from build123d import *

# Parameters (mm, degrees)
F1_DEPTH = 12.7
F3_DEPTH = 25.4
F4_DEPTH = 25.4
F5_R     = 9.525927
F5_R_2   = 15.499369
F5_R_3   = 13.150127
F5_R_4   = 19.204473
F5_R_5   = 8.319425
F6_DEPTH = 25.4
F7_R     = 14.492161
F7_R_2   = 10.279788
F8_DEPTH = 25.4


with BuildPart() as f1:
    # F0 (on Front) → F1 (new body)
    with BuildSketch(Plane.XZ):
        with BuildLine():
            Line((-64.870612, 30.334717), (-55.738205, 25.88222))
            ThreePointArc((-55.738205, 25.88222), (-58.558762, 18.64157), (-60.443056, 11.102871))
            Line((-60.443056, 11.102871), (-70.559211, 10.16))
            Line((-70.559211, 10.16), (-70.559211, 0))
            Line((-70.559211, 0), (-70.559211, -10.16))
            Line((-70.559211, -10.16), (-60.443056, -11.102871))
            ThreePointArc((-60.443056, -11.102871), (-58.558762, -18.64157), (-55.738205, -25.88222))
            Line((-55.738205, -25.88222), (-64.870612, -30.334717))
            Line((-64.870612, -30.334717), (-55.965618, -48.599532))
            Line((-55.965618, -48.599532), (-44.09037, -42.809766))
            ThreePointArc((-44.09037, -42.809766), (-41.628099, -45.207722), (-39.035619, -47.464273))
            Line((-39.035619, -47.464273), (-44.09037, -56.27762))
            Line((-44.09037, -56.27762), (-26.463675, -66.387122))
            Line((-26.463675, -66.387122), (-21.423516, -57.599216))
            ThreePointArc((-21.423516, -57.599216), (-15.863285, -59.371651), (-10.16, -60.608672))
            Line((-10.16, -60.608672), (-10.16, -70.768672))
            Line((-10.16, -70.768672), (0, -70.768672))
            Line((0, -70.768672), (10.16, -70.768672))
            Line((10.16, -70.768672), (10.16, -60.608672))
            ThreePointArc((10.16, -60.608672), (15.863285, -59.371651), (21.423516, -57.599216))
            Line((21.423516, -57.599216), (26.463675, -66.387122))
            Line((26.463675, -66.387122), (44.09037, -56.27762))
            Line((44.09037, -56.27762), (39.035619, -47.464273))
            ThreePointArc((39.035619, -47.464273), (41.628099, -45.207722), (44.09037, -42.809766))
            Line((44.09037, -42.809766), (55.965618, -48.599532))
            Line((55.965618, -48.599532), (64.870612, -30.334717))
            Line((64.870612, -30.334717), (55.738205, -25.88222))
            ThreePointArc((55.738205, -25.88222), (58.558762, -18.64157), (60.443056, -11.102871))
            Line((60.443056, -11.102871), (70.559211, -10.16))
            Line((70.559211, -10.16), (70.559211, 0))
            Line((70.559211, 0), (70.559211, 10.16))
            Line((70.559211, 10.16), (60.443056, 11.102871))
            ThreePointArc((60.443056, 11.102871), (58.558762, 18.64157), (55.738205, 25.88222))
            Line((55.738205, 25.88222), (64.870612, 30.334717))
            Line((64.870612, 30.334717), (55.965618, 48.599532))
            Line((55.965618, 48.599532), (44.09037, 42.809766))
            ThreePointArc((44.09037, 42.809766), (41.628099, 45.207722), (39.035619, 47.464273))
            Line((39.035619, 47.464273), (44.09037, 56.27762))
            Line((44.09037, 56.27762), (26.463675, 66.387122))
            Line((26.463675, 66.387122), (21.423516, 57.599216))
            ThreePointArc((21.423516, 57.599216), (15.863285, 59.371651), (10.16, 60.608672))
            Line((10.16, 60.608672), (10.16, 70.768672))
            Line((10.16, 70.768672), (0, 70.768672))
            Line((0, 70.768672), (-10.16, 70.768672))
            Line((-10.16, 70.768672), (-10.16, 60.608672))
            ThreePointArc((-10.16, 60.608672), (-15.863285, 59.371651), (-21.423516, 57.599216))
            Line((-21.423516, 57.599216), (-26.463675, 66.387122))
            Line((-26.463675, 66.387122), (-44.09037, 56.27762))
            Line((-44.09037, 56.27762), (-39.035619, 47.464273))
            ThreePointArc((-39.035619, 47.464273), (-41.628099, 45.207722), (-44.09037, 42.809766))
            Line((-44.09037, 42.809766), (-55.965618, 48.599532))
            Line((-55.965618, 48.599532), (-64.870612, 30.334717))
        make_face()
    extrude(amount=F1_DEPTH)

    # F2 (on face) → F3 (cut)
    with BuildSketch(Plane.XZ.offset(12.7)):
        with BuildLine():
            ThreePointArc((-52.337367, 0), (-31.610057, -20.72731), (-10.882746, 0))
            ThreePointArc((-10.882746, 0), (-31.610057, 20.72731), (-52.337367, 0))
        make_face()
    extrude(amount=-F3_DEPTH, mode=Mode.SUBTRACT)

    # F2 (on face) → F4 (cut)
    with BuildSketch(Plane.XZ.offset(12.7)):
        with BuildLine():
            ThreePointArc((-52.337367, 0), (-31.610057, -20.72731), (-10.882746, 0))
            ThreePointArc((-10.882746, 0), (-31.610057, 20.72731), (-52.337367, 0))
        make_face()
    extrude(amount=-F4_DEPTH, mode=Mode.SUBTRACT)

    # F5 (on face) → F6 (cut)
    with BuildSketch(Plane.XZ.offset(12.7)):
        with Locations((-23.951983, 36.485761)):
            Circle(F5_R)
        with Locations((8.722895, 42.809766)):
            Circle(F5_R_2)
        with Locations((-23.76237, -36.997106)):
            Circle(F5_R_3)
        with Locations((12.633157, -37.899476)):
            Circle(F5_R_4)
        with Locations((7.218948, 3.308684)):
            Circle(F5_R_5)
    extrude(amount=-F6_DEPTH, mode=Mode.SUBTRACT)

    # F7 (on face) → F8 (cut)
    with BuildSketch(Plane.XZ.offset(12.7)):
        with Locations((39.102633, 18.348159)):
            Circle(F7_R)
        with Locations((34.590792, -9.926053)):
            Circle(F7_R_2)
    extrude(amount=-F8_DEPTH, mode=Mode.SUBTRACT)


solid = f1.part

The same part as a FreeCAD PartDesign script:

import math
import FreeCAD as App
import Part
import Sketcher
from FreeCAD import Vector
Q = App.Units.Quantity

doc = App.newDocument("Part")
params = doc.addObject("Spreadsheet::Sheet", "Params")
for row, (alias, value) in enumerate([
    ("sketch1_width", "0.8 in"),
    ("sketch1_height", "0.4 in"),
    ("sketch1_length", "0.4 in"),
    ("sketch1_length2", "0.8 in"),
    ("pad1_length", "0.5 in"),
    ("pocket1_length", "1 in"),
    ("pocket2_length", "1 in"),
    ("pocket3_length", "1 in"),
    ("pocket4_length", "1 in"),
], start=1):
    params.set(f"A{row}", alias)
    params.set(f"B{row}", "=" + value)
    params.setAlias(f"B{row}", alias)

body = doc.addObject("PartDesign::Body", "Body")

# Sketch on XZ plane
sketch1 = body.newObject("Sketcher::SketchObject", "Sketch")
sketch1.AttachmentSupport = (doc.getObject("XZ_Plane"), [""])
sketch1.MapMode = "FlatFace"
sketch1.addGeometry(Part.LineSegment(Vector(-65, 30, 0), Vector(-56, 26, 0)), False)
sketch1.addGeometry(Part.ArcOfCircle(Part.Circle(Vector(0, 0, 0), Vector(0, 0, 1), 61), math.radians(155.09), math.radians(169.59)), False)
sketch1.addGeometry(Part.LineSegment(Vector(-60, 11, 0), Vector(-71, 10, 0)), False)
sketch1.addGeometry(Part.LineSegment(Vector(-71, 10, 0), Vector(-71, -10, 0)), False)
sketch1.addGeometry(Part.LineSegment(Vector(-71, -10, 0), Vector(-60, -11, 0)), False)
sketch1.addGeometry(Part.ArcOfCircle(Part.Circle(Vector(0, 0, 0), Vector(0, 0, 1), 61), math.radians(-169.59), math.radians(-155.09)), False)
sketch1.addGeometry(Part.LineSegment(Vector(-56, -26, 0), Vector(-65, -30, 0)), False)
sketch1.addGeometry(Part.LineSegment(Vector(-65, -30, 0), Vector(-56, -49, 0)), False)
sketch1.addGeometry(Part.LineSegment(Vector(-56, -49, 0), Vector(-44, -43, 0)), False)
sketch1.addGeometry(Part.ArcOfCircle(Part.Circle(Vector(0, 0, 0), Vector(0, 0, 1), 61), math.radians(-135.84), math.radians(-129.43)), False)
sketch1.addGeometry(Part.LineSegment(Vector(-39, -47, 0), Vector(-44, -56, 0)), False)
sketch1.addGeometry(Part.LineSegment(Vector(-44, -56, 0), Vector(-26, -66, 0)), False)
sketch1.addGeometry(Part.LineSegment(Vector(-26, -66, 0), Vector(-21, -58, 0)), False)
sketch1.addGeometry(Part.ArcOfCircle(Part.Circle(Vector(0, 0, 0), Vector(0, 0, 1), 61), math.radians(-110.4), math.radians(-99.52)), False)
sketch1.addGeometry(Part.LineSegment(Vector(-10, -61, 0), Vector(-10, -71, 0)), False)
sketch1.addGeometry(Part.LineSegment(Vector(-10, -71, 0), Vector(10, -71, 0)), False)
sketch1.addGeometry(Part.LineSegment(Vector(10, -71, 0), Vector(10, -61, 0)), False)
sketch1.addGeometry(Part.ArcOfCircle(Part.Circle(Vector(0, 0, 0), Vector(0, 0, 1), 61), math.radians(-80.48), math.radians(-69.6)), False)
sketch1.addGeometry(Part.LineSegment(Vector(21, -58, 0), Vector(26, -66, 0)), False)
sketch1.addGeometry(Part.LineSegment(Vector(26, -66, 0), Vector(44, -56, 0)), False)
sketch1.addGeometry(Part.LineSegment(Vector(44, -56, 0), Vector(39, -47, 0)), False)
sketch1.addGeometry(Part.ArcOfCircle(Part.Circle(Vector(0, 0, 0), Vector(0, 0, 1), 61), math.radians(-50.57), math.radians(-44.16)), False)
sketch1.addGeometry(Part.LineSegment(Vector(44, -43, 0), Vector(56, -49, 0)), False)
sketch1.addGeometry(Part.LineSegment(Vector(56, -49, 0), Vector(65, -30, 0)), False)
sketch1.addGeometry(Part.LineSegment(Vector(65, -30, 0), Vector(56, -26, 0)), False)
sketch1.addGeometry(Part.ArcOfCircle(Part.Circle(Vector(0, 0, 0), Vector(0, 0, 1), 61), math.radians(-24.91), math.radians(-10.41)), False)
sketch1.addGeometry(Part.LineSegment(Vector(60, -11, 0), Vector(71, -10, 0)), False)
sketch1.addGeometry(Part.LineSegment(Vector(71, -10, 0), Vector(71, 10, 0)), False)
sketch1.addGeometry(Part.LineSegment(Vector(71, 10, 0), Vector(60, 11, 0)), False)
sketch1.addGeometry(Part.ArcOfCircle(Part.Circle(Vector(0, 0, 0), Vector(0, 0, 1), 61), math.radians(10.41), math.radians(24.91)), False)
sketch1.addGeometry(Part.LineSegment(Vector(56, 26, 0), Vector(65, 30, 0)), False)
sketch1.addGeometry(Part.LineSegment(Vector(65, 30, 0), Vector(56, 49, 0)), False)
sketch1.addGeometry(Part.LineSegment(Vector(56, 49, 0), Vector(44, 43, 0)), False)
sketch1.addGeometry(Part.ArcOfCircle(Part.Circle(Vector(0, 0, 0), Vector(0, 0, 1), 61), math.radians(44.16), math.radians(50.57)), False)
sketch1.addGeometry(Part.LineSegment(Vector(39, 47, 0), Vector(44, 56, 0)), False)
sketch1.addGeometry(Part.LineSegment(Vector(44, 56, 0), Vector(26, 66, 0)), False)
sketch1.addGeometry(Part.LineSegment(Vector(26, 66, 0), Vector(21, 58, 0)), False)
sketch1.addGeometry(Part.ArcOfCircle(Part.Circle(Vector(0, 0, 0), Vector(0, 0, 1), 61), math.radians(69.6), math.radians(80.48)), False)
sketch1.addGeometry(Part.LineSegment(Vector(10, 61, 0), Vector(10, 71, 0)), False)
sketch1.addGeometry(Part.LineSegment(Vector(10, 71, 0), Vector(-10, 71, 0)), False)
sketch1.addGeometry(Part.LineSegment(Vector(-10, 71, 0), Vector(-10, 61, 0)), False)
sketch1.addGeometry(Part.ArcOfCircle(Part.Circle(Vector(0, 0, 0), Vector(0, 0, 1), 61), math.radians(99.52), math.radians(110.4)), False)
sketch1.addGeometry(Part.LineSegment(Vector(-21, 58, 0), Vector(-26, 66, 0)), False)
sketch1.addGeometry(Part.LineSegment(Vector(-26, 66, 0), Vector(-44, 56, 0)), False)
sketch1.addGeometry(Part.LineSegment(Vector(-44, 56, 0), Vector(-39, 47, 0)), False)
sketch1.addGeometry(Part.ArcOfCircle(Part.Circle(Vector(0, 0, 0), Vector(0, 0, 1), 61), math.radians(129.43), math.radians(135.84)), False)
sketch1.addGeometry(Part.LineSegment(Vector(-44, 43, 0), Vector(-56, 49, 0)), False)
sketch1.addGeometry(Part.LineSegment(Vector(-56, 49, 0), Vector(-65, 30, 0)), False)
sketch1.addConstraint(Sketcher.Constraint("Coincident", 0, 2, 1, 1))
sketch1.addConstraint(Sketcher.Constraint("Coincident", 1, 2, 2, 1))
sketch1.addConstraint(Sketcher.Constraint("Coincident", 2, 2, 3, 1))
sketch1.addConstraint(Sketcher.Constraint("Coincident", 3, 2, 4, 1))
sketch1.addConstraint(Sketcher.Constraint("Coincident", 4, 2, 5, 1))
sketch1.addConstraint(Sketcher.Constraint("Coincident", 5, 2, 6, 1))
sketch1.addConstraint(Sketcher.Constraint("Coincident", 6, 2, 7, 1))
sketch1.addConstraint(Sketcher.Constraint("Coincident", 7, 2, 8, 1))
sketch1.addConstraint(Sketcher.Constraint("Coincident", 8, 2, 9, 1))
sketch1.addConstraint(Sketcher.Constraint("Coincident", 9, 2, 10, 1))
sketch1.addConstraint(Sketcher.Constraint("Coincident", 10, 2, 11, 1))
sketch1.addConstraint(Sketcher.Constraint("Coincident", 11, 2, 12, 1))
sketch1.addConstraint(Sketcher.Constraint("Coincident", 12, 2, 13, 1))
sketch1.addConstraint(Sketcher.Constraint("Coincident", 13, 2, 14, 1))
sketch1.addConstraint(Sketcher.Constraint("Coincident", 14, 2, 15, 1))
sketch1.addConstraint(Sketcher.Constraint("Coincident", 15, 2, 16, 1))
sketch1.addConstraint(Sketcher.Constraint("Coincident", 16, 2, 17, 1))
sketch1.addConstraint(Sketcher.Constraint("Coincident", 17, 2, 18, 1))
sketch1.addConstraint(Sketcher.Constraint("Coincident", 18, 2, 19, 1))
sketch1.addConstraint(Sketcher.Constraint("Coincident", 19, 2, 20, 1))
sketch1.addConstraint(Sketcher.Constraint("Coincident", 20, 2, 21, 1))
sketch1.addConstraint(Sketcher.Constraint("Coincident", 21, 2, 22, 1))
sketch1.addConstraint(Sketcher.Constraint("Coincident", 22, 2, 23, 1))
sketch1.addConstraint(Sketcher.Constraint("Coincident", 23, 2, 24, 1))
sketch1.addConstraint(Sketcher.Constraint("Coincident", 24, 2, 25, 1))
sketch1.addConstraint(Sketcher.Constraint("Coincident", 25, 2, 26, 1))
sketch1.addConstraint(Sketcher.Constraint("Coincident", 26, 2, 27, 1))
sketch1.addConstraint(Sketcher.Constraint("Coincident", 27, 2, 28, 1))
sketch1.addConstraint(Sketcher.Constraint("Coincident", 28, 2, 29, 1))
sketch1.addConstraint(Sketcher.Constraint("Coincident", 29, 2, 30, 1))
sketch1.addConstraint(Sketcher.Constraint("Coincident", 30, 2, 31, 1))
sketch1.addConstraint(Sketcher.Constraint("Coincident", 31, 2, 32, 1))
sketch1.addConstraint(Sketcher.Constraint("Coincident", 32, 2, 33, 1))
sketch1.addConstraint(Sketcher.Constraint("Coincident", 33, 2, 34, 1))
sketch1.addConstraint(Sketcher.Constraint("Coincident", 34, 2, 35, 1))
sketch1.addConstraint(Sketcher.Constraint("Coincident", 35, 2, 36, 1))
sketch1.addConstraint(Sketcher.Constraint("Coincident", 36, 2, 37, 1))
sketch1.addConstraint(Sketcher.Constraint("Coincident", 37, 2, 38, 1))
sketch1.addConstraint(Sketcher.Constraint("Coincident", 38, 2, 39, 1))
sketch1.addConstraint(Sketcher.Constraint("Coincident", 39, 2, 40, 1))
sketch1.addConstraint(Sketcher.Constraint("Coincident", 40, 2, 41, 1))
sketch1.addConstraint(Sketcher.Constraint("Coincident", 41, 2, 42, 1))
sketch1.addConstraint(Sketcher.Constraint("Coincident", 42, 2, 43, 1))
sketch1.addConstraint(Sketcher.Constraint("Coincident", 43, 2, 44, 1))
sketch1.addConstraint(Sketcher.Constraint("Coincident", 44, 2, 45, 1))
sketch1.addConstraint(Sketcher.Constraint("Coincident", 45, 2, 46, 1))
sketch1.addConstraint(Sketcher.Constraint("Coincident", 46, 2, 47, 1))
sketch1.addConstraint(Sketcher.Constraint("Coincident", 47, 2, 0, 1))
sketch1.addConstraint(Sketcher.Constraint("Vertical", 3))
sketch1.addConstraint(Sketcher.Constraint("Vertical", 14))
sketch1.addConstraint(Sketcher.Constraint("Horizontal", 15))
sketch1.addConstraint(Sketcher.Constraint("Vertical", 16))
sketch1.addConstraint(Sketcher.Constraint("Vertical", 27))
sketch1.addConstraint(Sketcher.Constraint("Vertical", 38))
sketch1.addConstraint(Sketcher.Constraint("Horizontal", 39))
sketch1.addConstraint(Sketcher.Constraint("Vertical", 40))
sketch1.addConstraint(Sketcher.Constraint("Equal", 1, 5))
sketch1.addConstraint(Sketcher.Constraint("Equal", 13, 17))
sketch1.addConstraint(Sketcher.Constraint("Equal", 9, 21))
sketch1.addConstraint(Sketcher.Constraint("Equal", 5, 25))
sketch1.addConstraint(Sketcher.Constraint("Equal", 25, 29))
sketch1.addConstraint(Sketcher.Constraint("Equal", 21, 33))
sketch1.addConstraint(Sketcher.Constraint("Equal", 17, 37))
sketch1.addConstraint(Sketcher.Constraint("Equal", 37, 41))
sketch1.addConstraint(Sketcher.Constraint("Equal", 33, 45))
sketch1.addConstraint(Sketcher.Constraint("Symmetric", 1, 3, 25, 3, -1, 1))
sketch1.addConstraint(Sketcher.Constraint("Symmetric", 5, 3, 29, 3, -1, 1))
sketch1.addConstraint(Sketcher.Constraint("Symmetric", 9, 3, 33, 3, -1, 1))
sketch1.addConstraint(Sketcher.Constraint("Symmetric", 13, 3, 37, 3, -1, 1))
sketch1.addConstraint(Sketcher.Constraint("Symmetric", 17, 3, 41, 3, -1, 1))
sketch1.addConstraint(Sketcher.Constraint("Symmetric", 21, 3, 45, 3, -1, 1))
sketch1.addConstraint(Sketcher.Constraint("Symmetric", 2, 2, 26, 2, -1, 1))
sketch1.addConstraint(Sketcher.Constraint("Symmetric", 6, 2, 30, 2, -1, 1))
sketch1.addConstraint(Sketcher.Constraint("Symmetric", 7, 2, 31, 2, -1, 1))
sketch1.addConstraint(Sketcher.Constraint("Symmetric", 10, 2, 34, 2, -1, 1))
sketch1.addConstraint(Sketcher.Constraint("Symmetric", 11, 2, 35, 2, -1, 1))
sketch1.addConstraint(Sketcher.Constraint("Symmetric", 14, 2, 38, 2, -1, 1))
sketch1.addConstraint(Sketcher.Constraint("Symmetric", 18, 2, 42, 2, -1, 1))
sketch1.addConstraint(Sketcher.Constraint("Symmetric", 19, 2, 43, 2, -1, 1))
sketch1.addConstraint(Sketcher.Constraint("Symmetric", 22, 2, 46, 2, -1, 1))
sketch1.addConstraint(Sketcher.Constraint("Symmetric", 23, 2, 47, 2, -1, 1))
sketch1.addConstraint(Sketcher.Constraint("Symmetric", 13, 3, 17, 3, -2))
sketch1.addConstraint(Sketcher.Constraint("Symmetric", 9, 3, 21, 3, -2))
sketch1.addConstraint(Sketcher.Constraint("Symmetric", 5, 3, 25, 3, -2))
sketch1.addConstraint(Sketcher.Constraint("Symmetric", 11, 2, 18, 2, -2))
sketch1.addConstraint(Sketcher.Constraint("Symmetric", 10, 2, 19, 2, -2))
sketch1.addConstraint(Sketcher.Constraint("Symmetric", 7, 2, 22, 2, -2))
sketch1.addConstraint(Sketcher.Constraint("Symmetric", 6, 2, 23, 2, -2))
sketch1.addConstraint(Sketcher.Constraint("Perpendicular", 6, 7))
sketch1.addConstraint(Sketcher.Constraint("Perpendicular", 7, 8))
sketch1.addConstraint(Sketcher.Constraint("Perpendicular", 10, 11))
sketch1.addConstraint(Sketcher.Constraint("Perpendicular", 11, 12))
sketch1.addConstraint(Sketcher.Constraint("Perpendicular", 18, 19))
sketch1.addConstraint(Sketcher.Constraint("Perpendicular", 19, 20))
sketch1.addConstraint(Sketcher.Constraint("Parallel", 0, 22))
sketch1.addConstraint(Sketcher.Constraint("Perpendicular", 22, 23))
sketch1.addConstraint(Sketcher.Constraint("Perpendicular", 23, 24))
sketch1.addConstraint(Sketcher.Constraint("Parallel", 2, 26))
sketch1.addConstraint(Sketcher.Constraint("Parallel", 4, 28))
sketch1.addConstraint(Sketcher.Constraint("Parallel", 8, 30))
sketch1.addConstraint(Sketcher.Constraint("Perpendicular", 31, 32))
sketch1.addConstraint(Sketcher.Constraint("Parallel", 12, 34))
sketch1.addConstraint(Sketcher.Constraint("Perpendicular", 35, 36))
sketch1.addConstraint(Sketcher.Constraint("Parallel", 20, 42))
sketch1.addConstraint(Sketcher.Constraint("Perpendicular", 43, 44))
sketch1.addConstraint(Sketcher.Constraint("Parallel", 24, 46))
sketch1.addConstraint(Sketcher.Constraint("Horizontal", 13, 2, 16, 2))
sketch1.addConstraint(Sketcher.Constraint("Horizontal", 4, 2, 25, 2))
sketch1.addConstraint(Sketcher.Constraint("Horizontal", 3, 2, 26, 2))
sketch1.addConstraint(Sketcher.Constraint("Horizontal", 2, 2, 27, 2))
sketch1.addConstraint(Sketcher.Constraint("Horizontal", 37, 2, 40, 2))
sketch1.addConstraint(Sketcher.Constraint("Vertical", 8, 2, 10, 2))
sketch1.addConstraint(Sketcher.Constraint("Equal", 39, 3))
sketch1.addConstraint(Sketcher.Constraint("Equal", 0, 2))
sketch1.addConstraint(Sketcher.Constraint("Equal", 6, 10))
sketch1.addConstraint(Sketcher.Constraint("Equal", 7, 11))
sketch1.addConstraint(Sketcher.Constraint("DistanceX", 15, 1, 15, 2, Q("0.8 in")))
sketch1.addConstraint(Sketcher.Constraint("DistanceY", 14, 2, 14, 1, Q("0.4 in")))
sketch1.addConstraint(Sketcher.Constraint("Distance", 0, Q("0.4 in")))
sketch1.addConstraint(Sketcher.Constraint("Distance", 7, Q("0.8 in")))
sketch1.addConstraint(Sketcher.Constraint("Radius", 13, 61.454289))
sketch1.addConstraint(Sketcher.Constraint("Radius", 1, 61.454394))
sketch1.addConstraint(Sketcher.Constraint("Radius", 9, 61.454462))
sketch1.addConstraint(Sketcher.Constraint("DistanceX", 3, 2, 6, 2, 5.688599))
sketch1.addConstraint(Sketcher.Constraint("DistanceX", 7, 2, 9, 2, 16.929999))
sketch1.addConstraint(Sketcher.Constraint("DistanceY", 9, 2, 4, 2, 36.361402))
sketch1.addConstraint(Sketcher.Constraint("DistanceY", 10, 2, 5, 2, 30.3954))
sketch1.addConstraint(Sketcher.Constraint("DistanceY", 11, 2, 5, 2, 40.504902))
sketch1.addConstraint(Sketcher.Constraint("DistanceY", 13, 2, 9, 2, 13.144399))
sketch1.addConstraint(Sketcher.Constraint("DistanceY", 17, 2, 23, 2, 27.264499))
sketch1.addConstraint(Sketcher.Constraint("Distance", 8, 13.211469))
sketch1.addConstraint(Sketcher.Constraint("DistanceY", -1, 1, 0, 2, 25.88222))
sketch1.addConstraint(Sketcher.Constraint("DistanceX", 2, 2, -1, 1, 70.559211))
sketch1.setExpression("Constraints[116]", "Params.sketch1_width")
sketch1.setExpression("Constraints[117]", "Params.sketch1_height")
sketch1.setExpression("Constraints[118]", "Params.sketch1_length")
sketch1.setExpression("Constraints[119]", "Params.sketch1_length2")
pad1 = body.newObject("PartDesign::Pad", "Pad")
pad1.Profile = sketch1
pad1.setExpression("Length", "Params.pad1_length")

# Sketch on XZ plane
sketch2 = body.newObject("Sketcher::SketchObject", "Sketch001")
sketch2.AttachmentSupport = (doc.getObject("XZ_Plane"), [""])
sketch2.MapMode = "FlatFace"
sketch2.AttachmentOffset = App.Placement(Vector(0, 0, 0.5 * 25.4), App.Rotation())
sketch2.addGeometry(Part.ArcOfCircle(Part.Circle(Vector(-32, 0, 0), Vector(0, 0, 1), 21), math.radians(-180), math.radians(0)), False)
sketch2.addGeometry(Part.ArcOfCircle(Part.Circle(Vector(-32, 0, 0), Vector(0, 0, 1), 21), math.radians(0), math.radians(180)), False)
sketch2.addConstraint(Sketcher.Constraint("Tangent", 0, 1, 1, 2))
sketch2.addConstraint(Sketcher.Constraint("Coincident", 1, 1, 0, 2))
sketch2.addConstraint(Sketcher.Constraint("PointOnObject", 0, 3, -1))
sketch2.addConstraint(Sketcher.Constraint("PointOnObject", 0, 1, -1))
sketch2.addConstraint(Sketcher.Constraint("PointOnObject", 1, 1, -1))
sketch2.addConstraint(Sketcher.Constraint("Radius", 0, 20.727311))
sketch2.addConstraint(Sketcher.Constraint("DistanceX", 0, 3, -1, 1, 31.610056))
pocket1 = body.newObject("PartDesign::Pocket", "Pocket")
pocket1.Profile = sketch2
pocket1.setExpression("Length", "Params.pocket1_length")

# Sketch on XZ plane
sketch3 = body.newObject("Sketcher::SketchObject", "Sketch002")
sketch3.AttachmentSupport = (doc.getObject("XZ_Plane"), [""])
sketch3.MapMode = "FlatFace"
sketch3.AttachmentOffset = App.Placement(Vector(0, 0, 0.5 * 25.4), App.Rotation())
sketch3.addGeometry(Part.ArcOfCircle(Part.Circle(Vector(-32, 0, 0), Vector(0, 0, 1), 21), math.radians(-180), math.radians(0)), False)
sketch3.addGeometry(Part.ArcOfCircle(Part.Circle(Vector(-32, 0, 0), Vector(0, 0, 1), 21), math.radians(0), math.radians(180)), False)
sketch3.addConstraint(Sketcher.Constraint("Tangent", 0, 1, 1, 2))
sketch3.addConstraint(Sketcher.Constraint("Coincident", 1, 1, 0, 2))
sketch3.addConstraint(Sketcher.Constraint("PointOnObject", 0, 3, -1))
sketch3.addConstraint(Sketcher.Constraint("PointOnObject", 0, 1, -1))
sketch3.addConstraint(Sketcher.Constraint("PointOnObject", 1, 1, -1))
sketch3.addConstraint(Sketcher.Constraint("Radius", 0, 20.727311))
sketch3.addConstraint(Sketcher.Constraint("DistanceX", 0, 3, -1, 1, 31.610056))
pocket2 = body.newObject("PartDesign::Pocket", "Pocket001")
pocket2.Profile = sketch3
pocket2.setExpression("Length", "Params.pocket2_length")

# Sketch on XZ plane
sketch4 = body.newObject("Sketcher::SketchObject", "Sketch003")
sketch4.AttachmentSupport = (doc.getObject("XZ_Plane"), [""])
sketch4.MapMode = "FlatFace"
sketch4.AttachmentOffset = App.Placement(Vector(0, 0, 0.5 * 25.4), App.Rotation())
sketch4.addGeometry(Part.Circle(Vector(-24, 36, 0), Vector(0, 0, 1), 10), False)
sketch4.addGeometry(Part.Circle(Vector(9, 43, 0), Vector(0, 0, 1), 15), False)
sketch4.addGeometry(Part.Circle(Vector(-24, -37, 0), Vector(0, 0, 1), 13), False)
sketch4.addGeometry(Part.Circle(Vector(13, -38, 0), Vector(0, 0, 1), 19), False)
sketch4.addGeometry(Part.Circle(Vector(7, 3, 0), Vector(0, 0, 1), 8), False)
sketch4.addConstraint(Sketcher.Constraint("Diameter", 4, 16.63885))
sketch4.addConstraint(Sketcher.Constraint("Diameter", 0, 19.051854))
sketch4.addConstraint(Sketcher.Constraint("Diameter", 1, 30.998738))
sketch4.addConstraint(Sketcher.Constraint("Diameter", 2, 26.300254))
sketch4.addConstraint(Sketcher.Constraint("Diameter", 3, 38.408946))
sketch4.addConstraint(Sketcher.Constraint("DistanceY", -1, 1, 0, 3, 36.485761))
sketch4.addConstraint(Sketcher.Constraint("DistanceX", 2, 3, -1, 1, 23.76237))
sketch4.addConstraint(Sketcher.Constraint("DistanceY", 2, 3, 1, 3, 79.806872))
sketch4.addConstraint(Sketcher.Constraint("DistanceY", 3, 3, 2, 3, 0.90237))
sketch4.addConstraint(Sketcher.Constraint("DistanceX", 0, 3, 3, 3, 36.58514))
sketch4.addConstraint(Sketcher.Constraint("DistanceX", 4, 3, 3, 3, 5.414209))
sketch4.addConstraint(Sketcher.Constraint("DistanceY", 3, 3, 4, 3, 41.20816))
sketch4.addConstraint(Sketcher.Constraint("DistanceX", 2, 3, 4, 3, 30.981318))
sketch4.addConstraint(Sketcher.Constraint("DistanceX", -1, 1, 1, 3, 8.722895))
sketch4.addConstraint(Sketcher.Constraint("DistanceY", -1, 1, 1, 3, 42.809766))
pocket3 = body.newObject("PartDesign::Pocket", "Pocket002")
pocket3.Profile = sketch4
pocket3.setExpression("Length", "Params.pocket3_length")

# Sketch on XZ plane
sketch5 = body.newObject("Sketcher::SketchObject", "Sketch004")
sketch5.AttachmentSupport = (doc.getObject("XZ_Plane"), [""])
sketch5.MapMode = "FlatFace"
sketch5.AttachmentOffset = App.Placement(Vector(0, 0, 0.5 * 25.4), App.Rotation())
sketch5.addGeometry(Part.Circle(Vector(39, 18, 0), Vector(0, 0, 1), 14), False)
sketch5.addGeometry(Part.Circle(Vector(35, -10, 0), Vector(0, 0, 1), 10), False)
sketch5.addConstraint(Sketcher.Constraint("Diameter", 0, 28.984322))
sketch5.addConstraint(Sketcher.Constraint("Diameter", 1, 20.559576))
sketch5.addConstraint(Sketcher.Constraint("DistanceY", -1, 1, 0, 3, 18.348159))
sketch5.addConstraint(Sketcher.Constraint("DistanceX", 1, 3, 0, 3, 4.511841))
sketch5.addConstraint(Sketcher.Constraint("DistanceY", 1, 3, 0, 3, 28.274212))
sketch5.addConstraint(Sketcher.Constraint("DistanceX", -1, 1, 0, 3, 39.102633))
pocket4 = body.newObject("PartDesign::Pocket", "Pocket003")
pocket4.Profile = sketch5
pocket4.setExpression("Length", "Params.pocket4_length")

doc.recompute()
